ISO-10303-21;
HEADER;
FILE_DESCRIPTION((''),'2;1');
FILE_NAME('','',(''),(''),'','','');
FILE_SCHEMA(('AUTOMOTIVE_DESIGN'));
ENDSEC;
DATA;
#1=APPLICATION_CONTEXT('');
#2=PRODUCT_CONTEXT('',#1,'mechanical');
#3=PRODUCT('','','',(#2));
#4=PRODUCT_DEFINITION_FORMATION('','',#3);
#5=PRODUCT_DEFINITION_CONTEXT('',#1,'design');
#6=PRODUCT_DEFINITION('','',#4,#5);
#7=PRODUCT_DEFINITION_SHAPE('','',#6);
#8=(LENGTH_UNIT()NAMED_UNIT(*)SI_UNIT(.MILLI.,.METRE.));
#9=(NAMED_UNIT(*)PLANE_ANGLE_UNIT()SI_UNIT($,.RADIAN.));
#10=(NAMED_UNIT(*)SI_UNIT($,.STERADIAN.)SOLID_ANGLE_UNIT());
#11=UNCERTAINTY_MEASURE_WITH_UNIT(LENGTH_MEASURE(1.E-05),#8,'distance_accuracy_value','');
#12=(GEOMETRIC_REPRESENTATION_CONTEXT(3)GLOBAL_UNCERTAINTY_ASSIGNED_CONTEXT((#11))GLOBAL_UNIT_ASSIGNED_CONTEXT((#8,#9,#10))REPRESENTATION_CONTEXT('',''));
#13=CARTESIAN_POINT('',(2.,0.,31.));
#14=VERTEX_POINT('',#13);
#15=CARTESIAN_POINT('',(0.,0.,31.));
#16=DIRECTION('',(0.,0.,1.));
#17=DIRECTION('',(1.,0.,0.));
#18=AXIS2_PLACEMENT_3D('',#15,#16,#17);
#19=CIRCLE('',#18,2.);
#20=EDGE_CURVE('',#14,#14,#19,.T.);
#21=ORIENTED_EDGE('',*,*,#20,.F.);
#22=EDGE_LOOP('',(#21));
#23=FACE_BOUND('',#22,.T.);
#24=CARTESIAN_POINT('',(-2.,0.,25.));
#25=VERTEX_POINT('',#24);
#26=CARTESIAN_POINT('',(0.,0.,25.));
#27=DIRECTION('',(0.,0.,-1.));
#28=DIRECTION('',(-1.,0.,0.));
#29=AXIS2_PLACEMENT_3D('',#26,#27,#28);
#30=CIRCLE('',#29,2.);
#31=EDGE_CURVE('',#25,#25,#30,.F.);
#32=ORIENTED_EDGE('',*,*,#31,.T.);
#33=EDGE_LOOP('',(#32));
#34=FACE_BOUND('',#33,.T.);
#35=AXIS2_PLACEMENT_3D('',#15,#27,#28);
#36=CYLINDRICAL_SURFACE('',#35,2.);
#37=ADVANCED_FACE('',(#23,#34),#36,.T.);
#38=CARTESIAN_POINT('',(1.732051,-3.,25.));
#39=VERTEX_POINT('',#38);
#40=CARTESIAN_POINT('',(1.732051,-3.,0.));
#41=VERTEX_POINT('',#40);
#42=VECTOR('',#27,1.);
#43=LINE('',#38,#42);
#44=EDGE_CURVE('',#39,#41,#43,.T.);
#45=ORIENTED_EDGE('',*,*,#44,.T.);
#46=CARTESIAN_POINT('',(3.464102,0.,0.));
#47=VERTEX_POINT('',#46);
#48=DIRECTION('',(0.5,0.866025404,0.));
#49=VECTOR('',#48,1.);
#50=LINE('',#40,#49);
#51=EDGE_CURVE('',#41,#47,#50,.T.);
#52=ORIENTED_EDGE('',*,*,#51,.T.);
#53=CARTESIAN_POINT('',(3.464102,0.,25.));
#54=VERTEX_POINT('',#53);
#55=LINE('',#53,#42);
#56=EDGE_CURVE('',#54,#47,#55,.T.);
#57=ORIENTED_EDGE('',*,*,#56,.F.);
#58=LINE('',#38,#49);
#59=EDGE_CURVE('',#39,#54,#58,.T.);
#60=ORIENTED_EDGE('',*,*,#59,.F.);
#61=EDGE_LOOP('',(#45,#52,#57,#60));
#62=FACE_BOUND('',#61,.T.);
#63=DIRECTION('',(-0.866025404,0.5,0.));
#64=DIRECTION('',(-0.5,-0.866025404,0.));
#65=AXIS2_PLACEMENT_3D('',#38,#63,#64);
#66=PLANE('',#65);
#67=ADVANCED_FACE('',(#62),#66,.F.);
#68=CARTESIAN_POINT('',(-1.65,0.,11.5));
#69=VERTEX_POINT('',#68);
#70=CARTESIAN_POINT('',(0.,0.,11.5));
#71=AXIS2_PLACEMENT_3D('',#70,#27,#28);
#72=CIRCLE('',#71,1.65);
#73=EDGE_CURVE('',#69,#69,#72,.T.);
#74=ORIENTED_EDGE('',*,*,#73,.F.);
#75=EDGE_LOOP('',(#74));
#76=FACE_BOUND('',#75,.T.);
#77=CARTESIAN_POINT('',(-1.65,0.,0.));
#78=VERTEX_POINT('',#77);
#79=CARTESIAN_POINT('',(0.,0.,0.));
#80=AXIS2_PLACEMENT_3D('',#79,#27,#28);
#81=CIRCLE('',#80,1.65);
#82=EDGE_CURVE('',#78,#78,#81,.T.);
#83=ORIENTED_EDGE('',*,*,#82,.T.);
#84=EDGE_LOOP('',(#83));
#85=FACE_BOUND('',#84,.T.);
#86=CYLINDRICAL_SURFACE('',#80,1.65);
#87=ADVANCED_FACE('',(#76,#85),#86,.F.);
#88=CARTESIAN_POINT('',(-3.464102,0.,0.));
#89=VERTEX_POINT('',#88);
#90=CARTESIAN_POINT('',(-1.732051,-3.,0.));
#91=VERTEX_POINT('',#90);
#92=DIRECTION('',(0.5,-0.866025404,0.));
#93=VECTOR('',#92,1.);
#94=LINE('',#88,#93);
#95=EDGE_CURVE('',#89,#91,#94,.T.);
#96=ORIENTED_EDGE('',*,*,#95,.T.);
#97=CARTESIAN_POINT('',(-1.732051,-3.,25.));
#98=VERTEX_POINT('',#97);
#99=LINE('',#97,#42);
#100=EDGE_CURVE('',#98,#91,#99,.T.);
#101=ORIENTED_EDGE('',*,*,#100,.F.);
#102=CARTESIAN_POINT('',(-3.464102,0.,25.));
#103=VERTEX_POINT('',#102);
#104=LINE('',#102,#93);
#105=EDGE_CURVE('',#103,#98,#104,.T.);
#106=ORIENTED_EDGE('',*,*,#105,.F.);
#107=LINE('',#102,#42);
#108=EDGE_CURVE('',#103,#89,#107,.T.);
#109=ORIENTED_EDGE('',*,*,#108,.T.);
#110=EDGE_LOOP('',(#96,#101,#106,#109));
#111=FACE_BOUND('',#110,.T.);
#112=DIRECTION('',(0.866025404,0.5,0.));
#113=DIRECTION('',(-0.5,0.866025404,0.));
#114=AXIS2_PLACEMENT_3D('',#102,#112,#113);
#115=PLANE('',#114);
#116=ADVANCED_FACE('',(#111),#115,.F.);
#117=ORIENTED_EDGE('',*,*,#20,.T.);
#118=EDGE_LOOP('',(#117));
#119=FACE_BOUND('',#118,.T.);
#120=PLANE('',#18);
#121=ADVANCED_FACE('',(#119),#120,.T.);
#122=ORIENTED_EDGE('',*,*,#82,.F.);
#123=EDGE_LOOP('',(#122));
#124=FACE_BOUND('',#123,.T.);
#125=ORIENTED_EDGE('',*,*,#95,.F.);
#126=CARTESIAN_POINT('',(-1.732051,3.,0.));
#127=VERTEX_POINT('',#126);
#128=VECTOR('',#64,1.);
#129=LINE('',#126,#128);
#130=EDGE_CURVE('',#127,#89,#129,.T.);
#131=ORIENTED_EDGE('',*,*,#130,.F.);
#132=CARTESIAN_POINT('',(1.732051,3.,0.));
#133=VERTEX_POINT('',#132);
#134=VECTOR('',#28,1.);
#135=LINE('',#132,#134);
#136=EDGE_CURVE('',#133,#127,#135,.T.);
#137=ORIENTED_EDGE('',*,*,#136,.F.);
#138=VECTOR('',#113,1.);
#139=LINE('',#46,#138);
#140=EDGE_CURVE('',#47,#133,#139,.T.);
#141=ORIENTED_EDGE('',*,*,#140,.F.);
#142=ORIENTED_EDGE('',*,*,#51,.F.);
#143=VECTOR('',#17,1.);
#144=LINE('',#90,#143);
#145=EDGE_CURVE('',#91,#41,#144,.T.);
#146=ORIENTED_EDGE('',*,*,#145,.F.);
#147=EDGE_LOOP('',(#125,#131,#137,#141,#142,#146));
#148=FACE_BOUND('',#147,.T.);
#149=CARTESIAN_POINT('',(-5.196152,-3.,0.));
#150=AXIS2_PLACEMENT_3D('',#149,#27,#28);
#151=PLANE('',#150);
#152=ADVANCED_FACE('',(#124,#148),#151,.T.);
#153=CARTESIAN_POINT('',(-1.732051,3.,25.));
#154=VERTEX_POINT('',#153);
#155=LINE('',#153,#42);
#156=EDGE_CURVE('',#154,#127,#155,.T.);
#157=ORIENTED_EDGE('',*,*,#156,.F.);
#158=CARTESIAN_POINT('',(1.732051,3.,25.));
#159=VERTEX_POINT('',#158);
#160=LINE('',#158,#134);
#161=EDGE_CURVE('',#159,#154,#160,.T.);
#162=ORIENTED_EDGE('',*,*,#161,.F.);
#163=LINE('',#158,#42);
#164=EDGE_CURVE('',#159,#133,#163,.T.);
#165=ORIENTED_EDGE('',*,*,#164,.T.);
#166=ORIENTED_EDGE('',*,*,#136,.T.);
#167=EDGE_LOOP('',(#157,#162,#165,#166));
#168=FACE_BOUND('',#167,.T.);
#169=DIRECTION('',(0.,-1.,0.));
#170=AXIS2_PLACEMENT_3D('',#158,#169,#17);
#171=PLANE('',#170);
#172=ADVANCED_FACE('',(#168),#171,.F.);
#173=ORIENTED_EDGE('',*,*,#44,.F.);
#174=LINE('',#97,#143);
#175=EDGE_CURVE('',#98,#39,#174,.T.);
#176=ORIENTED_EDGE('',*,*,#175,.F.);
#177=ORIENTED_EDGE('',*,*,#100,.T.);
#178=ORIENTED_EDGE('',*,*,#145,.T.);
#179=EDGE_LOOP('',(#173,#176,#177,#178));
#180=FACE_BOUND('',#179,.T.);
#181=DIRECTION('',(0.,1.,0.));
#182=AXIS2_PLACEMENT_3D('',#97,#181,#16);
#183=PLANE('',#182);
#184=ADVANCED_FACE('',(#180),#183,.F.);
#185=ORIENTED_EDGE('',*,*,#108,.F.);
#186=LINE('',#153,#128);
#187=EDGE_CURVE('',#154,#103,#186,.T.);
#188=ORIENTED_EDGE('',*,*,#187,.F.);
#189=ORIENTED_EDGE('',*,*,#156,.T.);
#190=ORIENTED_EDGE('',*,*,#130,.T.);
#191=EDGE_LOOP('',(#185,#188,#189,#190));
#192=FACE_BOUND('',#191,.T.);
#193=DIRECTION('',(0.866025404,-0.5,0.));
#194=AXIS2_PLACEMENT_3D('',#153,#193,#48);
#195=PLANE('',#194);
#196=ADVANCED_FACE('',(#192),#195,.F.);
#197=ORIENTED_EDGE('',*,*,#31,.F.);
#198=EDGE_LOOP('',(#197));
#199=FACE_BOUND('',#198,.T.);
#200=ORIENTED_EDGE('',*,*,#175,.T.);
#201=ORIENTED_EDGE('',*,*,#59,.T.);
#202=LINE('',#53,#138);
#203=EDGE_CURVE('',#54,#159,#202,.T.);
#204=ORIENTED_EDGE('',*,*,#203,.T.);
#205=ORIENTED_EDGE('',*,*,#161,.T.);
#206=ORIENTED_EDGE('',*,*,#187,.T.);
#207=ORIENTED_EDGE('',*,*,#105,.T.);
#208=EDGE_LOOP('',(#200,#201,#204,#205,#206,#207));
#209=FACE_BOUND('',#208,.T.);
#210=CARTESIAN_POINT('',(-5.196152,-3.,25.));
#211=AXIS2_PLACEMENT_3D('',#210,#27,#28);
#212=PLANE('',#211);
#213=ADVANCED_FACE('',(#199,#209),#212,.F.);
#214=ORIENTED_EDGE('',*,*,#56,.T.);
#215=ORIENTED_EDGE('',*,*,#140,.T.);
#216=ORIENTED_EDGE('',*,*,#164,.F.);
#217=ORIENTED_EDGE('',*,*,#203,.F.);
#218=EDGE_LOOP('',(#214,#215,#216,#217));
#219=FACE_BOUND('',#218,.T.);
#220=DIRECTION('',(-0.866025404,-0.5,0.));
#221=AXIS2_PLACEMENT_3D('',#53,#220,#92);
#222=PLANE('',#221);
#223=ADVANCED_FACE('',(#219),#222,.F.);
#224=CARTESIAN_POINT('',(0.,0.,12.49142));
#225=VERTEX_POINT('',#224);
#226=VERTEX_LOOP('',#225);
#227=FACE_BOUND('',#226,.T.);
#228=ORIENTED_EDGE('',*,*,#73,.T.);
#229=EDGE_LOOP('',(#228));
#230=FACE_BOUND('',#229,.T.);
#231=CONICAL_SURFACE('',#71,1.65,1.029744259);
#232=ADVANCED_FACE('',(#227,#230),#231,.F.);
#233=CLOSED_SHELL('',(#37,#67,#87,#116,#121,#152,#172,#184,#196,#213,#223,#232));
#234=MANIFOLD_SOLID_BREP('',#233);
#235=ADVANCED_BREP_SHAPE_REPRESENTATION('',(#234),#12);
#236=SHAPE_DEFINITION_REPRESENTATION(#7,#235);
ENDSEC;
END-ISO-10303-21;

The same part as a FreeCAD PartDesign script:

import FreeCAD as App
import Part
import Sketcher
from FreeCAD import Vector
Q = App.Units.Quantity

doc = App.newDocument("Part")
body = doc.addObject("PartDesign::Body", "Body")

sketch1 = body.newObject("Sketcher::SketchObject", "Sketch")
sketch1.AttachmentSupport = (doc.getObject("XY_Plane"), [""])
sketch1.MapMode = "FlatFace"
sketch1.addGeometry([
    Part.LineSegment(Vector(1.7, -3, 0), Vector(3.5, 0, 0)),
    Part.LineSegment(Vector(3.5, 0, 0), Vector(1.7, 3, 0)),
    Part.LineSegment(Vector(1.7, 3, 0), Vector(-1.7, 3, 0)),
    Part.LineSegment(Vector(-1.7, 3, 0), Vector(-3.5, 0, 0)),
    Part.LineSegment(Vector(-3.5, 0, 0), Vector(-1.7, -3, 0)),
    Part.LineSegment(Vector(-1.7, -3, 0), Vector(1.7, -3, 0)),
], False)
sketch1.addConstraint([
    Sketcher.Constraint("Coincident", 0, 2, 1, 1),
    Sketcher.Constraint("Coincident", 1, 2, 2, 1),
    Sketcher.Constraint("Coincident", 2, 2, 3, 1),
    Sketcher.Constraint("Coincident", 3, 2, 4, 1),
    Sketcher.Constraint("Coincident", 4, 2, 5, 1),
    Sketcher.Constraint("Coincident", 5, 2, 0, 1),
    Sketcher.Constraint("Horizontal", 2),
    Sketcher.Constraint("Horizontal", 5),
    Sketcher.Constraint("Symmetric", 0, 2, 3, 2, -1, 1),
    Sketcher.Constraint("Symmetric", 1, 2, 4, 2, -1, 1),
    Sketcher.Constraint("PointOnObject", 0, 2, -1),
    Sketcher.Constraint("Parallel", 0, 3),
    Sketcher.Constraint("Vertical", 2, 2, 4, 2),
    Sketcher.Constraint("Angle", 0, Q("60 deg")),
    Sketcher.Constraint("DistanceY", -1, 1, 1, 2, 3.0),
    Sketcher.Constraint("DistanceX", 2, 2, 2, 1, 3.464102),
])
pad1 = body.newObject("PartDesign::Pad", "Pad")
pad1.Profile = sketch1
pad1.Length = 25

sketch2 = body.newObject("Sketcher::SketchObject", "Sketch001")
sketch2.AttachmentSupport = (doc.getObject("XY_Plane"), [""])
sketch2.MapMode = "FlatFace"
sketch2.AttachmentOffset = App.Placement(Vector(0, 0, 25), App.Rotation())
sketch2.addGeometry(Part.Circle(Vector(0, 0, 0), Vector(0, 0, 1), 2), False)
sketch2.addConstraint([
    Sketcher.Constraint("Coincident", 0, 3, -1, 1),
    Sketcher.Constraint("Diameter", 0, 4.0),
])
pad2 = body.newObject("PartDesign::Pad", "Pad001")
pad2.Profile = sketch2
pad2.Length = 6

sketch3 = body.newObject("Sketcher::SketchObject", "Sketch002")
sketch3.AttachmentSupport = (doc.getObject("XY_Plane"), [""])
sketch3.MapMode = "FlatFace"
sketch3.addGeometry(Part.Circle(Vector(0, 0, 0), Vector(0, 0, 1), 1.6), False)
sketch3.addConstraint([
    Sketcher.Constraint("Coincident", 0, 3, -1, 1),
    Sketcher.Constraint("Diameter", 0, 3.3),
])
doc.recompute()
hole = body.newObject("PartDesign::Hole", "Hole")
hole.Profile = sketch3
hole.ThreadType = "None"
hole.Diameter = 3.3
hole.DepthType = "Dimension"
hole.Depth = 11.5
hole.DrillPoint = "Angled"
hole.DrillPointAngle = 118
hole.Reversed = True

doc.recompute()
